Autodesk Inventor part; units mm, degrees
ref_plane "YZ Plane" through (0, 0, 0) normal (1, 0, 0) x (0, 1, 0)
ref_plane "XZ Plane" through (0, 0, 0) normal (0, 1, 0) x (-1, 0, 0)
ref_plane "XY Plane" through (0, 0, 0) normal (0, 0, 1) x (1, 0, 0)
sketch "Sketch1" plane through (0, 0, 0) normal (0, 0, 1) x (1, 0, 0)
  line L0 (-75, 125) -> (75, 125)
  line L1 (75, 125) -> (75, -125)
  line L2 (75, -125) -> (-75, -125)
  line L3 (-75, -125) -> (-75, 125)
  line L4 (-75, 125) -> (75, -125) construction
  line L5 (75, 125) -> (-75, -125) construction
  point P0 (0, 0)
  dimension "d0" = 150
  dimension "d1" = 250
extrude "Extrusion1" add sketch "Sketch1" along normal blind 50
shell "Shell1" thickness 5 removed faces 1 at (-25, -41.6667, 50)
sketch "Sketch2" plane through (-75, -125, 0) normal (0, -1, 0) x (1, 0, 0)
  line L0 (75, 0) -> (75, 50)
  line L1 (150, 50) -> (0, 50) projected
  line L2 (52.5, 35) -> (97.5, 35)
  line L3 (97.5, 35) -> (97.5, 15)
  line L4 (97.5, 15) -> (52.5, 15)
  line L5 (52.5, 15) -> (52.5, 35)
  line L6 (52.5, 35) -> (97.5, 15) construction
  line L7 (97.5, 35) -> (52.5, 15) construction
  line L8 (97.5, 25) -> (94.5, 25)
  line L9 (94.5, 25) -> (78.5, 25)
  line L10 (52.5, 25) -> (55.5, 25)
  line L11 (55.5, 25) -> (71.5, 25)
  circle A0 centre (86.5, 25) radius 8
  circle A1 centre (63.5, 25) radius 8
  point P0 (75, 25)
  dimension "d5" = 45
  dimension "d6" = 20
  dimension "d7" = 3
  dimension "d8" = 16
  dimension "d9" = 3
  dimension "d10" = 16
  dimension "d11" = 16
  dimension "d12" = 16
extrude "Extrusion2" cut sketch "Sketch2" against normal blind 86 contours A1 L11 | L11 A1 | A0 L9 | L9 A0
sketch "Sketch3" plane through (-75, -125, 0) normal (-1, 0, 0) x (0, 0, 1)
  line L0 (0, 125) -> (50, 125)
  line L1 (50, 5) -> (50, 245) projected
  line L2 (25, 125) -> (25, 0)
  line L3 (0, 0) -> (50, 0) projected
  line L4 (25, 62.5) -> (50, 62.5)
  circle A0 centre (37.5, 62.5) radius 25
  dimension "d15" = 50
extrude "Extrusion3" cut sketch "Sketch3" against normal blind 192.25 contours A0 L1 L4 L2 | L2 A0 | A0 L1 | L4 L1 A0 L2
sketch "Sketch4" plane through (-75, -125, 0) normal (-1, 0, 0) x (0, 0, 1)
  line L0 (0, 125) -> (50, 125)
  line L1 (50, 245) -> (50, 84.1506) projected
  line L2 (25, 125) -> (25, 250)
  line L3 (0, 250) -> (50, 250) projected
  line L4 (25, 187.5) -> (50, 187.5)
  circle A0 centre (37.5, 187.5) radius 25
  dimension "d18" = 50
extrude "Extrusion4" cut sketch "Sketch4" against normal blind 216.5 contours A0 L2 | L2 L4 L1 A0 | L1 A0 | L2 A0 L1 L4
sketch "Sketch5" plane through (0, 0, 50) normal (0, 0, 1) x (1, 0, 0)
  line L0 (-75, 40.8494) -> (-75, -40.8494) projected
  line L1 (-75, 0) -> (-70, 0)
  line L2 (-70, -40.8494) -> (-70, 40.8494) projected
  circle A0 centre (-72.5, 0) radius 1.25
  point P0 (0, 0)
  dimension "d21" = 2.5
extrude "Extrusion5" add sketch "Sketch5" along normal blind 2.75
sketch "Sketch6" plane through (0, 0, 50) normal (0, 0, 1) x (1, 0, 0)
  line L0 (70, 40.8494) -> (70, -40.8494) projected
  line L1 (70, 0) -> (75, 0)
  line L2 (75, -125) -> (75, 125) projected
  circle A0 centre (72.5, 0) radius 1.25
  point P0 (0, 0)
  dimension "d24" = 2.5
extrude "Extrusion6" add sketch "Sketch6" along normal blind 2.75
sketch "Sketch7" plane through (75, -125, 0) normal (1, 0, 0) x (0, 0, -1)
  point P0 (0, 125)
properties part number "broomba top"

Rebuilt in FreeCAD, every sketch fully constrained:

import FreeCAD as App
import Part
import Sketcher
from FreeCAD import Vector
Q = App.Units.Quantity


def faces_at(feature, points):
    """Names of the faces that lie closest to the given points."""
    faces = feature.Shape.Faces
    near = lambda p: min(range(len(faces)), key=lambda i: faces[i].distToShape(Part.Vertex(*p))[0])
    return sorted({f"Face{near(p) + 1}" for p in points})

doc = App.newDocument("Part")
body = doc.addObject("PartDesign::Body", "Body")

sketch1 = body.newObject("Sketcher::SketchObject", "Sketch")
sketch1.AttachmentSupport = (doc.getObject("XY_Plane"), [""])
sketch1.MapMode = "FlatFace"
sketch1.addGeometry(Part.LineSegment(Vector(75, 125, 0), Vector(-75, 125, 0)), False)
sketch1.addGeometry(Part.LineSegment(Vector(-75, 125, 0), Vector(-75, -125, 0)), False)
sketch1.addGeometry(Part.LineSegment(Vector(-75, -125, 0), Vector(75, -125, 0)), False)
sketch1.addGeometry(Part.LineSegment(Vector(75, -125, 0), Vector(75, 125, 0)), False)
sketch1.addConstraint(Sketcher.Constraint("Coincident", 0, 2, 1, 1))
sketch1.addConstraint(Sketcher.Constraint("Coincident", 1, 2, 2, 1))
sketch1.addConstraint(Sketcher.Constraint("Coincident", 2, 2, 3, 1))
sketch1.addConstraint(Sketcher.Constraint("Coincident", 3, 2, 0, 1))
sketch1.addConstraint(Sketcher.Constraint("Horizontal", 0))
sketch1.addConstraint(Sketcher.Constraint("Vertical", 1))
sketch1.addConstraint(Sketcher.Constraint("Horizontal", 2))
sketch1.addConstraint(Sketcher.Constraint("Vertical", 3))
sketch1.addConstraint(Sketcher.Constraint("Symmetric", 0, 2, 2, 2, -1, 1))
sketch1.addConstraint(Sketcher.Constraint("DistanceX", 0, 2, 0, 1, Q("150 mm")))
sketch1.addConstraint(Sketcher.Constraint("DistanceY", 1, 2, 1, 1, Q("250 mm")))
pad1 = body.newObject("PartDesign::Pad", "Pad")
pad1.Profile = sketch1
pad1.Length = 50
doc.recompute()

thickness = body.newObject("PartDesign::Thickness", "Thickness")
thickness.Base = (pad1, faces_at(pad1, [(-25, -41.667, 50)]))
thickness.Value = 5
thickness.Reversed = True
thickness.Join = "Intersection"

sketch2 = body.newObject("Sketcher::SketchObject", "Sketch001")
sketch2.AttachmentSupport = (doc.getObject("XZ_Plane"), [""])
sketch2.MapMode = "FlatFace"
sketch2.AttachmentOffset = App.Placement(Vector(0, 0, 125), App.Rotation())
sketch2.addGeometry(Part.Circle(Vector(-12, 25, 0), Vector(0, 0, 1), 8), False)
sketch2.addGeometry(Part.Circle(Vector(12, 25, 0), Vector(0, 0, 1), 8), False)
sketch2.addConstraint(Sketcher.Constraint("Equal", 0, 1))
sketch2.addConstraint(Sketcher.Constraint("Symmetric", 0, 3, 1, 3, -2))
sketch2.addConstraint(Sketcher.Constraint("Diameter", 0, Q("16 mm")))
sketch2.addConstraint(Sketcher.Constraint("DistanceY", -1, 1, 0, 3, Q("25 mm")))
sketch2.addConstraint(Sketcher.Constraint("DistanceX", 0, 3, 1, 3, Q("23 mm")))
pocket1 = body.newObject("PartDesign::Pocket", "Pocket")
pocket1.Profile = sketch2
pocket1.Length = 86

sketch3 = body.newObject("Sketcher::SketchObject", "Sketch002")
sketch3.AttachmentSupport = (doc.getObject("YZ_Plane"), [""])
sketch3.MapMode = "FlatFace"
sketch3.AttachmentOffset = App.Placement(Vector(0, 0, -75), App.Rotation())
sketch3.addGeometry(Part.Circle(Vector(-62, 38, 0), Vector(0, 0, 1), 25), False)
sketch3.addConstraint(Sketcher.Constraint("Diameter", 0, Q("50 mm")))
sketch3.addConstraint(Sketcher.Constraint("DistanceX", 0, 3, -1, 1, Q("62.5 mm")))
sketch3.addConstraint(Sketcher.Constraint("DistanceY", -1, 1, 0, 3, Q("37.5 mm")))
pocket2 = body.newObject("PartDesign::Pocket", "Pocket001")
pocket2.Profile = sketch3
pocket2.Length = 192.25
pocket2.Reversed = True

sketch4 = body.newObject("Sketcher::SketchObject", "Sketch003")
sketch4.AttachmentSupport = (doc.getObject("YZ_Plane"), [""])
sketch4.MapMode = "FlatFace"
sketch4.AttachmentOffset = App.Placement(Vector(0, 0, -75), App.Rotation())
sketch4.addGeometry(Part.Circle(Vector(62, 38, 0), Vector(0, 0, 1), 25), False)
sketch4.addConstraint(Sketcher.Constraint("Diameter", 0, Q("50 mm")))
sketch4.addConstraint(Sketcher.Constraint("DistanceX", -1, 1, 0, 3, Q("62.5 mm")))
sketch4.addConstraint(Sketcher.Constraint("DistanceY", -1, 1, 0, 3, Q("37.5 mm")))
pocket3 = body.newObject("PartDesign::Pocket", "Pocket002")
pocket3.Profile = sketch4
pocket3.Length = 216.5
pocket3.Reversed = True

sketch5 = body.newObject("Sketcher::SketchObject", "Sketch004")
sketch5.AttachmentSupport = (doc.getObject("XY_Plane"), [""])
sketch5.MapMode = "FlatFace"
sketch5.AttachmentOffset = App.Placement(Vector(0, 0, 50), App.Rotation())
sketch5.addGeometry(Part.Circle(Vector(-72.5, 0, 0), Vector(0, 0, 1), 1.2), False)
sketch5.addConstraint(Sketcher.Constraint("PointOnObject", 0, 3, -1))
sketch5.addConstraint(Sketcher.Constraint("Diameter", 0, Q("2.5 mm")))
sketch5.addConstraint(Sketcher.Constraint("DistanceX", 0, 3, -1, 1, Q("72.5 mm")))
pad2 = body.newObject("PartDesign::Pad", "Pad001")
pad2.Profile = sketch5
pad2.Length = 2.75

sketch6 = body.newObject("Sketcher::SketchObject", "Sketch005")
sketch6.AttachmentSupport = (doc.getObject("XY_Plane"), [""])
sketch6.MapMode = "FlatFace"
sketch6.AttachmentOffset = App.Placement(Vector(0, 0, 50), App.Rotation())
sketch6.addGeometry(Part.Circle(Vector(72.5, 0, 0), Vector(0, 0, 1), 1.2), False)
sketch6.addConstraint(Sketcher.Constraint("PointOnObject", 0, 3, -1))
sketch6.addConstraint(Sketcher.Constraint("Diameter", 0, Q("2.5 mm")))
sketch6.addConstraint(Sketcher.Constraint("DistanceX", -1, 1, 0, 3, Q("72.5 mm")))
pad3 = body.newObject("PartDesign::Pad", "Pad002")
pad3.Profile = sketch6
pad3.Length = 2.75

doc.recompute()
